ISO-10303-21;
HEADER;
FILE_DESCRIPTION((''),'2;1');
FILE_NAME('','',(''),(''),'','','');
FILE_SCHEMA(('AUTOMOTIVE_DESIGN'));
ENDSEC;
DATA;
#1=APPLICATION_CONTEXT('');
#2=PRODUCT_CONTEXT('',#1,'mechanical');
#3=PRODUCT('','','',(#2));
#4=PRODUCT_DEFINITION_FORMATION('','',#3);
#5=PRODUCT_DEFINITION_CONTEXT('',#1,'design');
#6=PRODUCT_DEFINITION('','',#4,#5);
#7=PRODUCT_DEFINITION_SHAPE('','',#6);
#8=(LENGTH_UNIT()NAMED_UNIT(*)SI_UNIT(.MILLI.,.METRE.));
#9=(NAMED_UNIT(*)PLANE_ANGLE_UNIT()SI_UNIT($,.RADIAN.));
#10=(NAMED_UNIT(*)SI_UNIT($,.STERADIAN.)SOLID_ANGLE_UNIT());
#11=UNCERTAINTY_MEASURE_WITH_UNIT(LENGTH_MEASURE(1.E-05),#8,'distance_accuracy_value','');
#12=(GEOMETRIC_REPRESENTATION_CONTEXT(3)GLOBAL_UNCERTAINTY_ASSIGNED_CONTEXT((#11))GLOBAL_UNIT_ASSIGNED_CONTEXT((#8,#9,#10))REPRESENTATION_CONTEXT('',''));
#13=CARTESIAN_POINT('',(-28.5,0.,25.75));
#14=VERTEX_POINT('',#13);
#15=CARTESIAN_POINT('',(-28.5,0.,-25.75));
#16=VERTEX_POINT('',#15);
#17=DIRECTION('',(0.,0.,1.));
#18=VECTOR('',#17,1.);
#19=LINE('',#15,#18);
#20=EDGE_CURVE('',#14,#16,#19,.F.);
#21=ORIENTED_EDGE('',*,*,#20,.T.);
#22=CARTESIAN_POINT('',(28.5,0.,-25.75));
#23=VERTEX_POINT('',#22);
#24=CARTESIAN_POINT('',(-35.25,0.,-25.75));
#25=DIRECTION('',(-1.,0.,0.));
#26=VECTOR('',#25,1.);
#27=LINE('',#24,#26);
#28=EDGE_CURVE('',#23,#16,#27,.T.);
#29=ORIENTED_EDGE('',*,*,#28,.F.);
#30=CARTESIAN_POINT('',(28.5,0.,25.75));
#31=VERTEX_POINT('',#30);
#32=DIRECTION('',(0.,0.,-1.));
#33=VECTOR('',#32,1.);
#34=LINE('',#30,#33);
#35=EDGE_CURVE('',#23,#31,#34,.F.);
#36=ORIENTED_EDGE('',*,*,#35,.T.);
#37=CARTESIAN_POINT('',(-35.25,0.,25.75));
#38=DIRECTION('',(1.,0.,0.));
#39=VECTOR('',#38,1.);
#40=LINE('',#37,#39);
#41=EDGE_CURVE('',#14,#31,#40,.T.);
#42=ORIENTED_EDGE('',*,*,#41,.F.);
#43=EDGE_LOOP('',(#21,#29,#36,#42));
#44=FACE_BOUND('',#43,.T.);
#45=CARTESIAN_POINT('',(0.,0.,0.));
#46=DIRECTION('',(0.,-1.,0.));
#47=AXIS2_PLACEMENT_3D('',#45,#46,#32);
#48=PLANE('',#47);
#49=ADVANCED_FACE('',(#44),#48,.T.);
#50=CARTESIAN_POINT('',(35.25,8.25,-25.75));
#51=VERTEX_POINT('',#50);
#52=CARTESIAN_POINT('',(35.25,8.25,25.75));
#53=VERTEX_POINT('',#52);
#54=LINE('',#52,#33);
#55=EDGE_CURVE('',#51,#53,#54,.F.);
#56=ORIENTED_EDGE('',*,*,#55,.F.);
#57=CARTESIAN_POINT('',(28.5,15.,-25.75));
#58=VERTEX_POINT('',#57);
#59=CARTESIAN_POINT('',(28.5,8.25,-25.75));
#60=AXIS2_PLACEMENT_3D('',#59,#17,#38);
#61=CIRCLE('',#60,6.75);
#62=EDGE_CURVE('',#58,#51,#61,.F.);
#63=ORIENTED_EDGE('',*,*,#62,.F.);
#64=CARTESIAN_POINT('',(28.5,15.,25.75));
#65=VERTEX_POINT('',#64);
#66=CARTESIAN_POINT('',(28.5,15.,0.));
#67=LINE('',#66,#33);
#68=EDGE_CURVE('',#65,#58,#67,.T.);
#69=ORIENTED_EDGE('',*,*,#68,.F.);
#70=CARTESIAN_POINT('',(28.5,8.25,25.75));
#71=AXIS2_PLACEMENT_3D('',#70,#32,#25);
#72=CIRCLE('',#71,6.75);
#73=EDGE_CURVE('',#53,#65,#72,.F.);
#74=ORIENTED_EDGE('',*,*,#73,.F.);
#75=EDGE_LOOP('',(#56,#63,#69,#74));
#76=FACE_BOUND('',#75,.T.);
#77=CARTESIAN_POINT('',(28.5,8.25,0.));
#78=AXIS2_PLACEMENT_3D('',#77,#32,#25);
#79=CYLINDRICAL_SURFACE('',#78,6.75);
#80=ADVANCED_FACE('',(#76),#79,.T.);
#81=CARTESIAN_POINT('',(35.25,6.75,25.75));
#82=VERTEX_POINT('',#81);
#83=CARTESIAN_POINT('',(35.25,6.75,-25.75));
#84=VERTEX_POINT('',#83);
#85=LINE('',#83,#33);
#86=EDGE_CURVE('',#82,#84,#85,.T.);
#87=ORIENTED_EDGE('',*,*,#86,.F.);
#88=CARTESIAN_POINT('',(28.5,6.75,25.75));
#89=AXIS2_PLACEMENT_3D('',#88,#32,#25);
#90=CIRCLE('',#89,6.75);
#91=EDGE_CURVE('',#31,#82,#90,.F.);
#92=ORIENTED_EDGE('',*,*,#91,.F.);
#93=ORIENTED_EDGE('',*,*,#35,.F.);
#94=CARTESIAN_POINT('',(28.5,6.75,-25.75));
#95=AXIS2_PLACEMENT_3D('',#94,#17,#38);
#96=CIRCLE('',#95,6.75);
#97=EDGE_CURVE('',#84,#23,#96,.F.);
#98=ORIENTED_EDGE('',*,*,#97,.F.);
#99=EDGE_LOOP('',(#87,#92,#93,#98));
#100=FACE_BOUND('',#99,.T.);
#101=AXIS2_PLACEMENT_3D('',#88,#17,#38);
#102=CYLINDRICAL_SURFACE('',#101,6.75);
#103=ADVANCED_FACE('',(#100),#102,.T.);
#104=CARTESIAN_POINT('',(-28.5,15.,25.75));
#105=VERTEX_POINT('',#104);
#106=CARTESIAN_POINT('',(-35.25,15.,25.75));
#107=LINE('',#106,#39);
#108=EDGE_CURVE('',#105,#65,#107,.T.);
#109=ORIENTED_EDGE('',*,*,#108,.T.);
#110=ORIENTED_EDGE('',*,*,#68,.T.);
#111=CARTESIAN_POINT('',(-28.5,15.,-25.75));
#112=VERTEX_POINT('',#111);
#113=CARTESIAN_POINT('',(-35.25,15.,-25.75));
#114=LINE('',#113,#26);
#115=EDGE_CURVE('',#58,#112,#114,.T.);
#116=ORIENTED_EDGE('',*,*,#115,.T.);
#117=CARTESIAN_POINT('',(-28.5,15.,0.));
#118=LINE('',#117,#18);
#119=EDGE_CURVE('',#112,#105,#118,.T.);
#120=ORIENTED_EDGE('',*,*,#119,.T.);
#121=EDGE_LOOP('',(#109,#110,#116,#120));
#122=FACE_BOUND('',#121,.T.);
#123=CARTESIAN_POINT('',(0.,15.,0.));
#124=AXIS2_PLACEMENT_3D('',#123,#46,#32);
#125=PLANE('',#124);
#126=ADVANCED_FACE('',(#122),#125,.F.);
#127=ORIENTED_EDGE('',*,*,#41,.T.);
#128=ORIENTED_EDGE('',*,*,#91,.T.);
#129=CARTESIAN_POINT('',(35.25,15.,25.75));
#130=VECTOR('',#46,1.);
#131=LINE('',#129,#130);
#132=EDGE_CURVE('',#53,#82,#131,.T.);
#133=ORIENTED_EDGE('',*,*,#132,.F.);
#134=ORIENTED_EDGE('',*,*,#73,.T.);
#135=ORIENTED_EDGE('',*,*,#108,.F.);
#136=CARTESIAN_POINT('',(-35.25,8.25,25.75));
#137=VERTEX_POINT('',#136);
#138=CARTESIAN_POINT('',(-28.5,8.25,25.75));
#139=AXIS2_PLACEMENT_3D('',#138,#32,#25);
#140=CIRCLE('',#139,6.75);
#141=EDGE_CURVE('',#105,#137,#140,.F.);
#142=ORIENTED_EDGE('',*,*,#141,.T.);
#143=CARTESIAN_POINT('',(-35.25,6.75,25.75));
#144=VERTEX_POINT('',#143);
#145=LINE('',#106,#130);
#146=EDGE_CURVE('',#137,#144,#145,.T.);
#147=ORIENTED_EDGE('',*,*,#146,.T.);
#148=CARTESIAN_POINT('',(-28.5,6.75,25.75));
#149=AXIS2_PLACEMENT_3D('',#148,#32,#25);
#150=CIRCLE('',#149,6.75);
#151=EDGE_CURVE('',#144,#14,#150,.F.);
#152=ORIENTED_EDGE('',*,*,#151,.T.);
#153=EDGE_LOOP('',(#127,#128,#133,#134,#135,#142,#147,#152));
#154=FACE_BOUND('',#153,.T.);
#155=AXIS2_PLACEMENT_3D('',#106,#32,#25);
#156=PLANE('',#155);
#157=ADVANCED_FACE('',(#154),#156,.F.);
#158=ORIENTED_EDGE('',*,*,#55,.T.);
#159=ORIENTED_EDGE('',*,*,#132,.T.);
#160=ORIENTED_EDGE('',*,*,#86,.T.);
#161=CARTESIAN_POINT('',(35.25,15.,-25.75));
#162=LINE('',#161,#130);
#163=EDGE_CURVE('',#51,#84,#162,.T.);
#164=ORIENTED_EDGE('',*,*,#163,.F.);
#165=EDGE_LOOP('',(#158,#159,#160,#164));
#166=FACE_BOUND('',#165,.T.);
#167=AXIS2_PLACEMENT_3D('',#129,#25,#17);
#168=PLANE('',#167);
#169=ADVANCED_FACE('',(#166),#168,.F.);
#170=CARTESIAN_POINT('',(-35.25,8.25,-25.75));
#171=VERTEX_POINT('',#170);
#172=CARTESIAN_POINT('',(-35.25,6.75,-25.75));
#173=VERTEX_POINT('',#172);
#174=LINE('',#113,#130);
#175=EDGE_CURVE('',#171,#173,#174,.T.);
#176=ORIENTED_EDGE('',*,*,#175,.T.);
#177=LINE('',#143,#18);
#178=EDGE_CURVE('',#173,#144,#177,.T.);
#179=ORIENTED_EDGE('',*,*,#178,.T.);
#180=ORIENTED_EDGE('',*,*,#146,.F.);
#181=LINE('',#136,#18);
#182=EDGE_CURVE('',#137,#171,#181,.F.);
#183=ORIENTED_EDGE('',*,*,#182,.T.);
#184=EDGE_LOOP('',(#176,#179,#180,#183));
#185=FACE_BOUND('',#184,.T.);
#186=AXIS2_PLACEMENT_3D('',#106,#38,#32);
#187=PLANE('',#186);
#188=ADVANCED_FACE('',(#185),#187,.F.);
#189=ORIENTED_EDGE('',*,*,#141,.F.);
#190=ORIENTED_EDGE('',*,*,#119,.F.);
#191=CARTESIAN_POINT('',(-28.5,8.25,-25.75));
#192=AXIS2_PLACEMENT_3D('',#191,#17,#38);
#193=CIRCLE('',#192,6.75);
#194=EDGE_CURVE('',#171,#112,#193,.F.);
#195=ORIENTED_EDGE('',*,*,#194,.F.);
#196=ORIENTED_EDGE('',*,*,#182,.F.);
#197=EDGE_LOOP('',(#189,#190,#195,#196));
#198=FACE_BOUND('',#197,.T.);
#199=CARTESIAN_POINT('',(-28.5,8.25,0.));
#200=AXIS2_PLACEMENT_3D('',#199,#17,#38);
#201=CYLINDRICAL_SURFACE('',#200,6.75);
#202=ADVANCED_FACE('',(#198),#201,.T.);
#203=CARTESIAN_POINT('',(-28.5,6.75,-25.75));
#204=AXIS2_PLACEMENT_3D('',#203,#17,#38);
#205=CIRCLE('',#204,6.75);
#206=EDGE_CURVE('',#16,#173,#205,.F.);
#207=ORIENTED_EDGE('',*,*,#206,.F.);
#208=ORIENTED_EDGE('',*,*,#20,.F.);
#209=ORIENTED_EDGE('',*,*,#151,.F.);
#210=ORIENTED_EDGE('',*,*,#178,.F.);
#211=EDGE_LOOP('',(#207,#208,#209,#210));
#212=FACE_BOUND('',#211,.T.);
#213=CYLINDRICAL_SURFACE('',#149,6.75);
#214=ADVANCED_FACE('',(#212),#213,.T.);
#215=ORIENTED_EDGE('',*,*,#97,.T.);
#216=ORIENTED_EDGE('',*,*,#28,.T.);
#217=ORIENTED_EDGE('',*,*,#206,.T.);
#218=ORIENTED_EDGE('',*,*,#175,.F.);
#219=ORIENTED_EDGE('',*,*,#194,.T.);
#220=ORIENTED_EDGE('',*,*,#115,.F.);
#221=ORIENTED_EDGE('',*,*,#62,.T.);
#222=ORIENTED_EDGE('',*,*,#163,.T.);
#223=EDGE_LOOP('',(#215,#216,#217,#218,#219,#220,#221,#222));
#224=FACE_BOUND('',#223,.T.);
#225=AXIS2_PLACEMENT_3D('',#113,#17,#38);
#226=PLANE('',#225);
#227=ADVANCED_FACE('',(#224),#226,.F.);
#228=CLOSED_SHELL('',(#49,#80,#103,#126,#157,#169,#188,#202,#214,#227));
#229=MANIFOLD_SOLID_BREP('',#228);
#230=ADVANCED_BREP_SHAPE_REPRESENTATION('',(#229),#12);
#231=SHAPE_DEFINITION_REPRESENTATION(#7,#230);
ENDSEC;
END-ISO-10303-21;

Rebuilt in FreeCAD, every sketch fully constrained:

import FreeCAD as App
import Part
import Sketcher


def edges_at(feature, points):
    """Names of the edges that pass closest to the given points."""
    edges = feature.Shape.Edges
    near = lambda p: min(range(len(edges)), key=lambda i: edges[i].distToShape(Part.Vertex(*p))[0])
    return sorted({f"Edge{near(p) + 1}" for p in points})


def add_polygon(sketch, points):
    """Adds a closed chain of lines whose ends are joined by coincident constraints."""
    first, n = sketch.GeometryCount, len(points)
    for a, b in zip(points, points[1:] + points[:1]):
        sketch.addGeometry(Part.LineSegment(App.Vector(*a, 0), App.Vector(*b, 0)), False)
    for i in range(n):
        sketch.addConstraint(Sketcher.Constraint("Coincident", first + i, 2, first + (i + 1) % n, 1))

doc = App.newDocument("Part")
body = doc.addObject("PartDesign::Body", "Body")

# Sketch on XZ plane
sketch1 = body.newObject("Sketcher::SketchObject", "Sketch")
sketch1.AttachmentSupport = (doc.getObject("XZ_Plane"), [""])
sketch1.MapMode = "FlatFace"
add_polygon(sketch1, [(-35, -26), (-35, 26), (35, 26), (35, -26)])  # lines 0-3
sketch1.addConstraint(Sketcher.Constraint("Vertical", 0))
sketch1.addConstraint(Sketcher.Constraint("Horizontal", 1))
sketch1.addConstraint(Sketcher.Constraint("Vertical", 2))
sketch1.addConstraint(Sketcher.Constraint("Horizontal", 3))
sketch1.addConstraint(Sketcher.Constraint("Symmetric", 0, 2, 2, 2, -1, 1))
sketch1.addConstraint(Sketcher.Constraint("DistanceX", 1, 1, 1, 2, 70.5))
sketch1.addConstraint(Sketcher.Constraint("DistanceY", 0, 1, 0, 2, 51.5))
pad1 = body.newObject("PartDesign::Pad", "Pad")
pad1.Profile = sketch1
pad1.Length = 15
pad1.Reversed = True
doc.recompute()

fillet = body.newObject("PartDesign::Fillet", "Fillet")
fillet.Base = (pad1, edges_at(pad1, [
    (-35.25, 15, 0),
    (35.25, 15, 0),
    (-35.25, 0, 0),
    (35.25, 0, 0),
]))
fillet.Radius = 6.75

doc.recompute()
